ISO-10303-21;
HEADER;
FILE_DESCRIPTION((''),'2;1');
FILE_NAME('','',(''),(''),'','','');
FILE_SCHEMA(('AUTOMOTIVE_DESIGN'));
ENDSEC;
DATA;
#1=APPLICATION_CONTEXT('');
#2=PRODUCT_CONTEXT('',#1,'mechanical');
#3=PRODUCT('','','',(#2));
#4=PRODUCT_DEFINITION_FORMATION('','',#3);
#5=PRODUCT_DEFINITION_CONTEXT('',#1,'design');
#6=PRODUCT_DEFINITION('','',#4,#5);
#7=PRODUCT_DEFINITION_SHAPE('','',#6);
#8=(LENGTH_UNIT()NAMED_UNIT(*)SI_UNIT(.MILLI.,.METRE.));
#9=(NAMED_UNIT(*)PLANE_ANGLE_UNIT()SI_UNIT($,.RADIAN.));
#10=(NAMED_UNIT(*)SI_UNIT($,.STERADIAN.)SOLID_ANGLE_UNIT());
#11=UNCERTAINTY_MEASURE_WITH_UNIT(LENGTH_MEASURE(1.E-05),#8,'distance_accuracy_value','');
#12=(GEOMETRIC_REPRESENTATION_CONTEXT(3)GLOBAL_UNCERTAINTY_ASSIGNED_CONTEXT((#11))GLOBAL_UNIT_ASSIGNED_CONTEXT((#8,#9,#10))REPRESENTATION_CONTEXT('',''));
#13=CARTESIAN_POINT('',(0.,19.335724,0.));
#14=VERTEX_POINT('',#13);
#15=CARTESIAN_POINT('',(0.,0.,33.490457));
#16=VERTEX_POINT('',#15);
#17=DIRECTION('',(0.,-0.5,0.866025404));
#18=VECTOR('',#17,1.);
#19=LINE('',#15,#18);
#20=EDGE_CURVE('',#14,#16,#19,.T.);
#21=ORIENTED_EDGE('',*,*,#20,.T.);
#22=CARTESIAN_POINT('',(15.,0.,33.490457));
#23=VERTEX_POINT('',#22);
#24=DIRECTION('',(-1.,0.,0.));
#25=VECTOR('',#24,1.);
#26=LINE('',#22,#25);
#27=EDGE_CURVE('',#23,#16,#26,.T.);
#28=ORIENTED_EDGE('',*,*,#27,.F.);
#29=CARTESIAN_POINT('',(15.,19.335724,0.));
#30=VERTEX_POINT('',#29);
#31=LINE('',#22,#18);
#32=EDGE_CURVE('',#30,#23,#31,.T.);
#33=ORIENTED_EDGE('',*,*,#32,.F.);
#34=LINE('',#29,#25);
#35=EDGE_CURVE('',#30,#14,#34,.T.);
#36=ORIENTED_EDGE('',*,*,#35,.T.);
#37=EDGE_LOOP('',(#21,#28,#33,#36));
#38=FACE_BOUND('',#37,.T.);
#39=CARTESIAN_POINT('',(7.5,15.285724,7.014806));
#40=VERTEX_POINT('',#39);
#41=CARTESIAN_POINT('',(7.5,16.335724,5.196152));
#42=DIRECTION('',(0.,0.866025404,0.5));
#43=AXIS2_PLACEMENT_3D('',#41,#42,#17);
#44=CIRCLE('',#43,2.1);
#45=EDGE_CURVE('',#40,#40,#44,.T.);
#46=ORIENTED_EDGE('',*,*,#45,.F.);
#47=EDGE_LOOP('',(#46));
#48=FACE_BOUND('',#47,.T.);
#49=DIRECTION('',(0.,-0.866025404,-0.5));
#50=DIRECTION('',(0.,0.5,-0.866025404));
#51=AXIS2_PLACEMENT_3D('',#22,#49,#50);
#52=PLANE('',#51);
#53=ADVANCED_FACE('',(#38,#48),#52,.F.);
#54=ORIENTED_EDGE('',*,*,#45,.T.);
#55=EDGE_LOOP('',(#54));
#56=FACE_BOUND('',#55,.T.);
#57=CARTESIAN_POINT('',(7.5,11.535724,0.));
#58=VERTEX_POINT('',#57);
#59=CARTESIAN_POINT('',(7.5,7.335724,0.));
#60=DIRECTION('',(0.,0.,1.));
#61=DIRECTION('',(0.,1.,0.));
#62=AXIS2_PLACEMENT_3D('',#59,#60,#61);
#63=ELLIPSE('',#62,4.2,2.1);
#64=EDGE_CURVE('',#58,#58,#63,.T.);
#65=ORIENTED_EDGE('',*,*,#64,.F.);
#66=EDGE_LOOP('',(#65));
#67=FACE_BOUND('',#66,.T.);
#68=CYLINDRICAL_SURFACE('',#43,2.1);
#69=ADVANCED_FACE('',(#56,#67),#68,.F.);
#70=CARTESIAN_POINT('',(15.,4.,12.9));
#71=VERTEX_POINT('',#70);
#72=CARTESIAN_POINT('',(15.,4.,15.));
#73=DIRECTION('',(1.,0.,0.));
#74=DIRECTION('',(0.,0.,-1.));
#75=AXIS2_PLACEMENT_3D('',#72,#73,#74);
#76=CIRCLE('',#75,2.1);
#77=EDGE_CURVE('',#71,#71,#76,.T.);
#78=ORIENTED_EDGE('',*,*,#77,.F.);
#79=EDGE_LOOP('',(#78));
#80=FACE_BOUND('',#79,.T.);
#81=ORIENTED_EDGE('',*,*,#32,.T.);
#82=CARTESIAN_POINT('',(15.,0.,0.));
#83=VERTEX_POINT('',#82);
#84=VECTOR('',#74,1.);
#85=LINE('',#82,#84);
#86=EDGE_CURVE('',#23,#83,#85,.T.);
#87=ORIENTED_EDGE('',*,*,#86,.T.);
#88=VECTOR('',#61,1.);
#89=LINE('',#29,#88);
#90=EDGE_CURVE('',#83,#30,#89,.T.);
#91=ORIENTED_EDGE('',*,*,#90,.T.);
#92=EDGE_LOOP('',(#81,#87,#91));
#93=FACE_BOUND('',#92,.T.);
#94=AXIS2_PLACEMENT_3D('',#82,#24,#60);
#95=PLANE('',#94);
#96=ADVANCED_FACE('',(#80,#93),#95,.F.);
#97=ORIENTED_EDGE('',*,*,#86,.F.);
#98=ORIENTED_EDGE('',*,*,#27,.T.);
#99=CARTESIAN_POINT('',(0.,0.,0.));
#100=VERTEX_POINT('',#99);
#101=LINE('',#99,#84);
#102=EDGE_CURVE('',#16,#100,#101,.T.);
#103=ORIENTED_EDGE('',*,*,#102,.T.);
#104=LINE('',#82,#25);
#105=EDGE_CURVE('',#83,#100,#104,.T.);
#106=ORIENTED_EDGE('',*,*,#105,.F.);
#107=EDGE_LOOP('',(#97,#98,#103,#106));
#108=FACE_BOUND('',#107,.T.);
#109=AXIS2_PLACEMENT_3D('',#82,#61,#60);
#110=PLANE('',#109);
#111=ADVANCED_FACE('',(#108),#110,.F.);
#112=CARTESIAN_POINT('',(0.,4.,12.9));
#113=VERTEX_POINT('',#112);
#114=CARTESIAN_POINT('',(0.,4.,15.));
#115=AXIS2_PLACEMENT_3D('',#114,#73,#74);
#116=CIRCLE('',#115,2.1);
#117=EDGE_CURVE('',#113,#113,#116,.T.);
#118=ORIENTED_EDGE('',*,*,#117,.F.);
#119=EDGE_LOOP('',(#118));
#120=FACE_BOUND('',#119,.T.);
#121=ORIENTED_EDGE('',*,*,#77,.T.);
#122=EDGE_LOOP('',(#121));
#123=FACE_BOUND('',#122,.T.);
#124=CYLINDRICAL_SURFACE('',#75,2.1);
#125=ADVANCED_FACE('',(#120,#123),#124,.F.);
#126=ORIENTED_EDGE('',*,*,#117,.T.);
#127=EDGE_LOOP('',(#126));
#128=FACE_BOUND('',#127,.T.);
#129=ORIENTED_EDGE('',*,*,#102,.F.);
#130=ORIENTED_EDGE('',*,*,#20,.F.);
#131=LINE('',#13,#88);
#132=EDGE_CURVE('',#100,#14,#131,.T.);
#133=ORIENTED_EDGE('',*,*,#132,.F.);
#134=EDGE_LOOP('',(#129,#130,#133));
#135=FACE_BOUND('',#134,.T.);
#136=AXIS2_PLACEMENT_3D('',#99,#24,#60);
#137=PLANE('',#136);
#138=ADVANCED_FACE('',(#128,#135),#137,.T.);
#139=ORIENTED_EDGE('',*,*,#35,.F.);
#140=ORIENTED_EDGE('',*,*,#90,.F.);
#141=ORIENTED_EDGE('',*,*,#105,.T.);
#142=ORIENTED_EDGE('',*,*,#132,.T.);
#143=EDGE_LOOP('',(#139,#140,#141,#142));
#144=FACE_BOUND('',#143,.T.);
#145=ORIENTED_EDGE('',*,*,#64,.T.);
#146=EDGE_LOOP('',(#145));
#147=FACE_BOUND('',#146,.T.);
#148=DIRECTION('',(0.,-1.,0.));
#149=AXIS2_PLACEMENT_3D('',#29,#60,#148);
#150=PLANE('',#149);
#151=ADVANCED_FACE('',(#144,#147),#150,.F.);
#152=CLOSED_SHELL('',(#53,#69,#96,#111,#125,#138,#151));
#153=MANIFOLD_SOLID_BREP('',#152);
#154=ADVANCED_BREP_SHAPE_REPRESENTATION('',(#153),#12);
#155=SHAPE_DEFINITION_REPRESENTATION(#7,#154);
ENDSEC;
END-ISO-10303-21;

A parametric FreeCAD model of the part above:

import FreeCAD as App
import Part
import Sketcher
from FreeCAD import Vector
Q = App.Units.Quantity


def add_polygon(sketch, points):
    """Adds a closed chain of lines whose ends are joined by coincident constraints."""
    first, n = sketch.GeometryCount, len(points)
    for a, b in zip(points, points[1:] + points[:1]):
        sketch.addGeometry(Part.LineSegment(App.Vector(*a, 0), App.Vector(*b, 0)), False)
    for i in range(n):
        sketch.addConstraint(Sketcher.Constraint("Coincident", first + i, 2, first + (i + 1) % n, 1))

doc = App.newDocument("Part")
body = doc.addObject("PartDesign::Body", "Body")

# Sketch on YZ plane
sketch1 = body.newObject("Sketcher::SketchObject", "Sketch")
sketch1.AttachmentSupport = (doc.getObject("YZ_Plane"), [""])
sketch1.MapMode = "FlatFace"
add_polygon(sketch1, [(0, 33), (0, 0), (19, 0)])  # lines 0-2
sketch1.addConstraint([
    Sketcher.Constraint("Vertical", 0),
    Sketcher.Constraint("Horizontal", 1),
    Sketcher.Constraint("Coincident", 0, 2, -1, 1),
    Sketcher.Constraint("Angle", 2, Q("120 deg")),
    Sketcher.Constraint("Distance", 2, 38.671449),
])
pad1 = body.newObject("PartDesign::Pad", "Pad")
pad1.Profile = sketch1
pad1.Length = 15

# Sketch on YZ plane
sketch2 = body.newObject("Sketcher::SketchObject", "Sketch001")
sketch2.AttachmentSupport = (doc.getObject("YZ_Plane"), [""])
sketch2.MapMode = "FlatFace"
sketch2.AttachmentOffset = App.Placement(Vector(0, 0, 15), App.Rotation())
sketch2.addGeometry(Part.Circle(Vector(4, 15, 0), Vector(0, 0, 1), 2.1), False)
sketch2.addConstraint([
    Sketcher.Constraint("Diameter", 0, 4.2),
    Sketcher.Constraint("DistanceX", -1, 1, 0, 3, 4.0),
    Sketcher.Constraint("DistanceY", -1, 1, 0, 3, 15.0),
])
doc.recompute()
hole = body.newObject("PartDesign::Hole", "Hole")
hole.Profile = sketch2
hole.ThreadType = "None"
hole.Diameter = 4.2
hole.DepthType = "ThroughAll"

# Sketch on an angled plane
sketch3 = body.newObject("Sketcher::SketchObject", "Sketch002")
sketch3.Placement = App.Placement(Vector(0, 14.501793, 8.372614), App.Rotation(Vector(1, 0, 0), Vector(0, 0.5, -0.866025404), Vector(0, 0.866025404, 0.5), "ZXY"))
sketch3.addGeometry(Part.Circle(Vector(7.5, 3.7, 0), Vector(0, 0, 1), 2.1), False)
sketch3.addConstraint([
    Sketcher.Constraint("Diameter", 0, 4.2),
    Sketcher.Constraint("DistanceX", -1, 1, 0, 3, 7.5),
    Sketcher.Constraint("DistanceY", -1, 1, 0, 3, 3.667862),
])
doc.recompute()
hole2 = body.newObject("PartDesign::Hole", "Hole001")
hole2.Profile = sketch3
hole2.ThreadType = "None"
hole2.Diameter = 4.2
hole2.DepthType = "ThroughAll"

doc.recompute()
